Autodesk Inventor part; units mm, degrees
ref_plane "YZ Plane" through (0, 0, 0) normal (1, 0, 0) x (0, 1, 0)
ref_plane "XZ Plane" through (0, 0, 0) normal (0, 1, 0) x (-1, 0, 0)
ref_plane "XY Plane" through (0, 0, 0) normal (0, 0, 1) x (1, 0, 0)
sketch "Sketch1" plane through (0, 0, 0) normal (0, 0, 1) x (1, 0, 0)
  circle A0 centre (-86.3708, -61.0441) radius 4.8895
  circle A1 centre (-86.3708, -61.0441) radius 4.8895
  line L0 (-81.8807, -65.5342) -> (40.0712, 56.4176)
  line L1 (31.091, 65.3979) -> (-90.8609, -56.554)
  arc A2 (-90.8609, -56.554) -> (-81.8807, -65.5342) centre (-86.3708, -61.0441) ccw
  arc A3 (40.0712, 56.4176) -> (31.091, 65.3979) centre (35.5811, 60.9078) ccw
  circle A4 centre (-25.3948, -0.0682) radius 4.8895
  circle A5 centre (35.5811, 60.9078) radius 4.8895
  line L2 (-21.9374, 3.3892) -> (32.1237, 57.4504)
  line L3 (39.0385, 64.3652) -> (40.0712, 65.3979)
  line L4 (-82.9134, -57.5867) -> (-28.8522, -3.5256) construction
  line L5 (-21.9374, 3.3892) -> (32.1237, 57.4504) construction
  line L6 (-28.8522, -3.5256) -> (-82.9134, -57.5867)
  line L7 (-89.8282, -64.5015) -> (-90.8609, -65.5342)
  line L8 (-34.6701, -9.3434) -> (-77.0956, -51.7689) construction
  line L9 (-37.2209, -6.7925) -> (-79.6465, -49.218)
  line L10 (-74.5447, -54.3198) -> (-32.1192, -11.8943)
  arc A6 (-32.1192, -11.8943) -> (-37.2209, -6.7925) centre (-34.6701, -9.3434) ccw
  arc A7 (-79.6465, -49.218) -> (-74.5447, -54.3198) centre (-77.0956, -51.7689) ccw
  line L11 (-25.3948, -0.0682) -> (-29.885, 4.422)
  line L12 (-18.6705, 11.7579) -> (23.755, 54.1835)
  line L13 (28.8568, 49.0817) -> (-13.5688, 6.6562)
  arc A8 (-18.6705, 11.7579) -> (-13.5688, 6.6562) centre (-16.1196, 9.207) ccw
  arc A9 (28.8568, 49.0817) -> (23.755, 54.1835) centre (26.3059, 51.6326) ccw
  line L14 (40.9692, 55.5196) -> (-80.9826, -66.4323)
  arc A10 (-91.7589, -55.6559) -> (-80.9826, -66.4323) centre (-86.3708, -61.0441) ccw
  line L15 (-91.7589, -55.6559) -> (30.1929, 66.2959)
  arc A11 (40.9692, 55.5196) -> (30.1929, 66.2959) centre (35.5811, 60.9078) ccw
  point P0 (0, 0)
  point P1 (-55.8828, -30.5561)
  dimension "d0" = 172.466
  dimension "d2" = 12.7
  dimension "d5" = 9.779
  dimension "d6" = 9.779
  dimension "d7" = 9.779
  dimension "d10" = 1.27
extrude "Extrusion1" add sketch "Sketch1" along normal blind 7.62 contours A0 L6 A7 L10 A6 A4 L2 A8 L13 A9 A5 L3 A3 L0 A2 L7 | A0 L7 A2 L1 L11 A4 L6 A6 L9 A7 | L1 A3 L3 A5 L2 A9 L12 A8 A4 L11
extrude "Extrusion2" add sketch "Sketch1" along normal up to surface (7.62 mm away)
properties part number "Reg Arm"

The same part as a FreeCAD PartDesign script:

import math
import FreeCAD as App
import Part
import Sketcher

V = App.Vector
Q = App.Units.Quantity

doc = App.newDocument("Part")
body = doc.addObject("PartDesign::Body", "Body")

# Sketch on XY plane
sketch1 = doc.addObject("Sketcher::SketchObject", "Sketch")
body.addObject(sketch1)
sketch1.AttachmentSupport = (doc.XY_Plane, [""])
sketch1.MapMode = "FlatFace"
sketch1.addGeometry([
    Part.ArcOfCircle(Part.Circle(V(35.6, 60.9, 0), V(0, 0, 1), 6.4), math.radians(-45), math.radians(135)),  # 0
    Part.LineSegment(V(31.1, 65.4, 0), V(-90.9, -56.6, 0)),  # 1
    Part.ArcOfCircle(Part.Circle(V(-86.4, -61, 0), V(0, 0, 1), 6.3), math.radians(135), math.radians(315)),  # 2
    Part.LineSegment(V(-81.9, -65.5, 0), V(40.1, 56.4, 0)),  # 3
    Part.Circle(V(-86.4, -61, 0), V(0, 0, 1), 4.9),  # 4
    Part.ArcOfCircle(Part.Circle(V(-77.1, -51.8, 0), V(0, 0, 1), 3.6), math.radians(135), math.radians(315)),  # 5
    Part.LineSegment(V(-79.6, -49.2, 0), V(-37.2, -6.8, 0)),  # 6
    Part.ArcOfCircle(Part.Circle(V(-34.7, -9.3, 0), V(0, 0, 1), 3.6), math.radians(-45), math.radians(135)),  # 7
    Part.LineSegment(V(-32.1, -11.9, 0), V(-74.5, -54.3, 0)),  # 8
    Part.Circle(V(-25.4, -0.1, 0), V(0, 0, 1), 4.9),  # 9
    Part.ArcOfCircle(Part.Circle(V(-16.1, 9.2, 0), V(0, 0, 1), 3.6), math.radians(135), math.radians(315)),  # 10
    Part.LineSegment(V(-18.7, 11.8, 0), V(23.8, 54.2, 0)),  # 11
    Part.ArcOfCircle(Part.Circle(V(26.3, 51.6, 0), V(0, 0, 1), 3.6), math.radians(-45), math.radians(135)),  # 12
    Part.LineSegment(V(28.9, 49.1, 0), V(-13.6, 6.7, 0)),  # 13
    Part.Circle(V(35.6, 60.9, 0), V(0, 0, 1), 4.9),  # 14
], False)
sketch1.addConstraint([
    Sketcher.Constraint("Tangent", 0, 2, 1, 1),
    Sketcher.Constraint("Tangent", 1, 2, 2, 1),
    Sketcher.Constraint("Tangent", 2, 2, 3, 1),
    Sketcher.Constraint("Tangent", 3, 2, 0, 1),
    Sketcher.Constraint("Tangent", 5, 1, 6, 1),
    Sketcher.Constraint("Tangent", 6, 2, 7, 2),
    Sketcher.Constraint("Tangent", 7, 1, 8, 1),
    Sketcher.Constraint("Tangent", 8, 2, 5, 2),
    Sketcher.Constraint("Tangent", 10, 1, 11, 1),
    Sketcher.Constraint("Tangent", 11, 2, 12, 2),
    Sketcher.Constraint("Tangent", 12, 1, 13, 1),
    Sketcher.Constraint("Tangent", 13, 2, 10, 2),
    Sketcher.Constraint("Coincident", 4, 3, 2, 3),
    Sketcher.Constraint("Coincident", 14, 3, 0, 3),
    Sketcher.Constraint("Equal", 0, 2),
    Sketcher.Constraint("Equal", 5, 7),
    Sketcher.Constraint("Equal", 4, 9),
    Sketcher.Constraint("Equal", 7, 10),
    Sketcher.Constraint("Equal", 10, 12),
    Sketcher.Constraint("Equal", 9, 14),
    Sketcher.Constraint("Parallel", 3, 6),
    Sketcher.Constraint("Parallel", 8, 11),
    Sketcher.Constraint("Equal", 8, 11),
    Sketcher.Constraint("Radius", 0, Q("0.25 in")),
    Sketcher.Constraint("Diameter", 4, Q("0.385 in")),
    Sketcher.Constraint("Distance", 1, Q("6.79 in")),
    Sketcher.Constraint("Angle", 1, Q("-135 deg")),
    Sketcher.Constraint("Radius", 5, Q("3.6075 mm")),
    Sketcher.Constraint("DistanceY", 2, 3, -1, 1, Q("2.4033 in")),
    Sketcher.Constraint("DistanceX", 9, 3, -1, 1, Q("0.9998 in")),
    Sketcher.Constraint("DistanceX", 1, 2, -1, 1, Q("3.5772 in")),
    Sketcher.Constraint("DistanceX", 5, 1, -1, 1, Q("3.1357 in")),
    Sketcher.Constraint("DistanceX", 6, 2, -1, 1, Q("1.4654 in")),
    Sketcher.Constraint("DistanceY", -1, 1, 10, 1, Q("0.4629 in")),
    Sketcher.Constraint("DistanceX", -1, 1, 12, 1, Q("1.1361 in")),
    Sketcher.Constraint("DistanceY", 5, 3, 0, 3, Q("4.4361 in")),
    Sketcher.Constraint("DistanceY", 9, 3, 0, 2, Q("2.5774 in")),
])
pad1 = doc.addObject("PartDesign::Pad", "Pad")
body.addObject(pad1)
pad1.Profile = sketch1
pad1.Length = Q("0.3 in")

# Sketch on XY plane
sketch2 = doc.addObject("Sketcher::SketchObject", "Sketch001")
body.addObject(sketch2)
sketch2.AttachmentSupport = (doc.XY_Plane, [""])
sketch2.MapMode = "FlatFace"
sketch2.addGeometry([
    Part.LineSegment(V(-81, -66, 0), V(41, 56, 0)),  # 0
    Part.ArcOfCircle(Part.Circle(V(36, 61, 0), V(0, 0, 1), 8), math.radians(-45), math.radians(135)),  # 1
    Part.LineSegment(V(30, 66, 0), V(-92, -56, 0)),  # 2
    Part.ArcOfCircle(Part.Circle(V(-86, -61, 0), V(0, 0, 1), 8), math.radians(135), math.radians(315)),  # 3
    Part.ArcOfCircle(Part.Circle(V(-86, -61, 0), V(0, 0, 1), 6), math.radians(135), math.radians(315)),  # 4
    Part.LineSegment(V(-91, -57, 0), V(31, 65, 0)),  # 5
    Part.ArcOfCircle(Part.Circle(V(36, 61, 0), V(0, 0, 1), 6), math.radians(-45), math.radians(135)),  # 6
    Part.LineSegment(V(40, 56, 0), V(-82, -66, 0)),  # 7
], False)
sketch2.addConstraint([
    Sketcher.Constraint("Tangent", 0, 2, 1, 1),
    Sketcher.Constraint("Tangent", 1, 2, 2, 1),
    Sketcher.Constraint("Tangent", 2, 2, 3, 1),
    Sketcher.Constraint("Tangent", 3, 2, 0, 1),
    Sketcher.Constraint("Tangent", 4, 1, 5, 1),
    Sketcher.Constraint("Tangent", 5, 2, 6, 2),
    Sketcher.Constraint("Tangent", 6, 1, 7, 1),
    Sketcher.Constraint("Tangent", 7, 2, 4, 2),
    Sketcher.Constraint("Coincident", 4, 3, 3, 3),
    Sketcher.Constraint("Coincident", 6, 3, 1, 3),
    Sketcher.Constraint("Equal", 1, 3),
    Sketcher.Constraint("Equal", 4, 6),
    Sketcher.Constraint("Radius", 4, Q("0.25 in")),
    Sketcher.Constraint("Radius", 1, Q("0.3 in")),
    Sketcher.Constraint("Distance", 0, Q("6.79 in")),
    Sketcher.Constraint("Angle", 0, Q("45 deg")),
    Sketcher.Constraint("DistanceY", 3, 3, -1, 1, Q("2.4033 in")),
    Sketcher.Constraint("DistanceX", -1, 1, 1, 2, Q("1.1887 in")),
])
pad2 = doc.addObject("PartDesign::Pad", "Pad001")
body.addObject(pad2)
pad2.Profile = sketch2
pad2.Length = Q("0.3 in")

doc.recompute()
